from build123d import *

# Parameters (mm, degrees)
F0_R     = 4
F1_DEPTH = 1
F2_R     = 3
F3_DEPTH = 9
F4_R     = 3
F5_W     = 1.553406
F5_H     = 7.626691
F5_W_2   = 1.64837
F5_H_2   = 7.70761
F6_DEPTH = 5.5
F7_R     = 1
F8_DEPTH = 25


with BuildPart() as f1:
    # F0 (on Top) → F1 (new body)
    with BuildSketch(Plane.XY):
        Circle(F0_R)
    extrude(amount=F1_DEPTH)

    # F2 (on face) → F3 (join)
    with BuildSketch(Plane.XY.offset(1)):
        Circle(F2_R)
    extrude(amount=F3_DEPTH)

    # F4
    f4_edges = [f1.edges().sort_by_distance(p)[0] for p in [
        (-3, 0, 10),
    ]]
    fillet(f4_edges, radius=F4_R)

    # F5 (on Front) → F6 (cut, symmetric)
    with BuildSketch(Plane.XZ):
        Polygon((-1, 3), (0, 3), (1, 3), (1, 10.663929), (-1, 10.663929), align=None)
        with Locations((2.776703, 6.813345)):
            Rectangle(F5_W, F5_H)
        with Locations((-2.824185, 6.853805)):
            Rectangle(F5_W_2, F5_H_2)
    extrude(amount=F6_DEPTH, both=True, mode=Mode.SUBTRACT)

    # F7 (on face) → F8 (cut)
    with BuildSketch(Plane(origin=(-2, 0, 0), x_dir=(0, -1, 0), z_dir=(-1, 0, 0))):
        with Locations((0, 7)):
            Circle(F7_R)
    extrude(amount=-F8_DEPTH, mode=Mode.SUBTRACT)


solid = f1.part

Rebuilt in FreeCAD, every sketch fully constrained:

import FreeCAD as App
import Part
import Sketcher

V = App.Vector


def edges_at(feature, points):
    """Names of the edges that pass closest to the given points."""
    edges = feature.Shape.Edges
    near = lambda p: min(range(len(edges)), key=lambda i: edges[i].distToShape(Part.Vertex(*p))[0])
    return sorted({f"Edge{near(p) + 1}" for p in points})


def add_polygon(sketch, points):
    """Adds a closed chain of lines whose ends are joined by coincident constraints."""
    first, n = sketch.GeometryCount, len(points)
    for a, b in zip(points, points[1:] + points[:1]):
        sketch.addGeometry(Part.LineSegment(App.Vector(*a, 0), App.Vector(*b, 0)), False)
    for i in range(n):
        sketch.addConstraint(Sketcher.Constraint("Coincident", first + i, 2, first + (i + 1) % n, 1))

doc = App.newDocument("Part")
body = doc.addObject("PartDesign::Body", "Body")

# Sketch on XY plane
sketch1 = body.newObject("Sketcher::SketchObject", "Sketch")
sketch1.AttachmentSupport = (doc.getObject("XY_Plane"), [""])
sketch1.MapMode = "FlatFace"
sketch1.addGeometry(Part.Circle(V(0, 0, 0), V(0, 0, 1), 4), False)
sketch1.addConstraint(Sketcher.Constraint("Coincident", 0, 3, -1, 1))
sketch1.addConstraint(Sketcher.Constraint("Diameter", 0, 8.0))
pad1 = body.newObject("PartDesign::Pad", "Pad")
pad1.Profile = sketch1
pad1.Length = 1

# Sketch on XY plane
sketch2 = body.newObject("Sketcher::SketchObject", "Sketch001")
sketch2.AttachmentSupport = (doc.getObject("XY_Plane"), [""])
sketch2.MapMode = "FlatFace"
sketch2.AttachmentOffset = App.Placement(V(0, 0, 1), App.Rotation())
sketch2.addGeometry(Part.Circle(V(0, 0, 0), V(0, 0, 1), 3), False)
sketch2.addConstraint(Sketcher.Constraint("Coincident", 0, 3, -1, 1))
sketch2.addConstraint(Sketcher.Constraint("Diameter", 0, 6.0))
pad2 = body.newObject("PartDesign::Pad", "Pad001")
pad2.Profile = sketch2
pad2.Length = 9
doc.recompute()

fillet = body.newObject("PartDesign::Fillet", "Fillet")
fillet.Base = (pad2, edges_at(pad2, [(-3, 0, 10)]))
fillet.Radius = 3

# Sketch on XZ plane
sketch3 = body.newObject("Sketcher::SketchObject", "Sketch002")
sketch3.AttachmentSupport = (doc.getObject("XZ_Plane"), [""])
sketch3.MapMode = "FlatFace"
add_polygon(sketch3, [(-1, 3), (1, 3), (1, 10.663929), (-1, 10.663929)])  # lines 0-3
add_polygon(sketch3, [(2, 10.626691), (2, 2.999999), (3.553406, 2.999999), (3.553406, 10.626691)])  # lines 4-7
add_polygon(sketch3, [(-3.64837, 10.70761), (-3.64837, 3), (-2, 3), (-2, 10.70761)])  # lines 8-11
sketch3.addConstraint(Sketcher.Constraint("Horizontal", 0))
sketch3.addConstraint(Sketcher.Constraint("Vertical", 1))
sketch3.addConstraint(Sketcher.Constraint("Horizontal", 2))
sketch3.addConstraint(Sketcher.Constraint("Vertical", 3))
sketch3.addConstraint(Sketcher.Constraint("Vertical", 4))
sketch3.addConstraint(Sketcher.Constraint("Horizontal", 5))
sketch3.addConstraint(Sketcher.Constraint("Vertical", 6))
sketch3.addConstraint(Sketcher.Constraint("Horizontal", 7))
sketch3.addConstraint(Sketcher.Constraint("Vertical", 8))
sketch3.addConstraint(Sketcher.Constraint("Horizontal", 9))
sketch3.addConstraint(Sketcher.Constraint("Vertical", 10))
sketch3.addConstraint(Sketcher.Constraint("Horizontal", 11))
sketch3.addConstraint(Sketcher.Constraint("Symmetric", 4, 2, 9, 2, -2))
sketch3.addConstraint(Sketcher.Constraint("Horizontal", 3, 2, 4, 2))
sketch3.addConstraint(Sketcher.Constraint("DistanceX", 0, 1, 0, 2, 2.0))
sketch3.addConstraint(Sketcher.Constraint("DistanceX", -1, 1, 0, 2, 1.0))
sketch3.addConstraint(Sketcher.Constraint("DistanceY", -1, 1, 0, 2, 3.0))
sketch3.addConstraint(Sketcher.Constraint("DistanceX", -1, 1, 4, 2, 2.0))
sketch3.addConstraint(Sketcher.Constraint("DistanceX", 9, 1, 9, 2, 1.64837))
sketch3.addConstraint(Sketcher.Constraint("DistanceY", 1, 1, 1, 2, 7.663929))
sketch3.addConstraint(Sketcher.Constraint("DistanceY", 4, 2, 4, 1, 7.626691))
sketch3.addConstraint(Sketcher.Constraint("DistanceY", 8, 2, 8, 1, 7.70761))
sketch3.addConstraint(Sketcher.Constraint("DistanceX", 5, 1, 5, 2, 1.553406))
pocket1 = body.newObject("PartDesign::Pocket", "Pocket")
pocket1.Profile = sketch3
pocket1.Length = 11
pocket1.Midplane = True

# Sketch on YZ plane
sketch4 = body.newObject("Sketcher::SketchObject", "Sketch003")
sketch4.AttachmentSupport = (doc.getObject("YZ_Plane"), [""])
sketch4.MapMode = "FlatFace"
sketch4.AttachmentOffset = App.Placement(V(0, 0, -2), App.Rotation())
sketch4.addGeometry(Part.Circle(V(0, 7, 0), V(0, 0, 1), 1), False)
sketch4.addConstraint(Sketcher.Constraint("PointOnObject", 0, 3, -2))
sketch4.addConstraint(Sketcher.Constraint("Diameter", 0, 2.0))
sketch4.addConstraint(Sketcher.Constraint("DistanceY", -1, 1, 0, 3, 7.0))
pocket2 = body.newObject("PartDesign::Pocket", "Pocket001")
pocket2.Profile = sketch4
pocket2.Length = 25
pocket2.Reversed = True

doc.recompute()
